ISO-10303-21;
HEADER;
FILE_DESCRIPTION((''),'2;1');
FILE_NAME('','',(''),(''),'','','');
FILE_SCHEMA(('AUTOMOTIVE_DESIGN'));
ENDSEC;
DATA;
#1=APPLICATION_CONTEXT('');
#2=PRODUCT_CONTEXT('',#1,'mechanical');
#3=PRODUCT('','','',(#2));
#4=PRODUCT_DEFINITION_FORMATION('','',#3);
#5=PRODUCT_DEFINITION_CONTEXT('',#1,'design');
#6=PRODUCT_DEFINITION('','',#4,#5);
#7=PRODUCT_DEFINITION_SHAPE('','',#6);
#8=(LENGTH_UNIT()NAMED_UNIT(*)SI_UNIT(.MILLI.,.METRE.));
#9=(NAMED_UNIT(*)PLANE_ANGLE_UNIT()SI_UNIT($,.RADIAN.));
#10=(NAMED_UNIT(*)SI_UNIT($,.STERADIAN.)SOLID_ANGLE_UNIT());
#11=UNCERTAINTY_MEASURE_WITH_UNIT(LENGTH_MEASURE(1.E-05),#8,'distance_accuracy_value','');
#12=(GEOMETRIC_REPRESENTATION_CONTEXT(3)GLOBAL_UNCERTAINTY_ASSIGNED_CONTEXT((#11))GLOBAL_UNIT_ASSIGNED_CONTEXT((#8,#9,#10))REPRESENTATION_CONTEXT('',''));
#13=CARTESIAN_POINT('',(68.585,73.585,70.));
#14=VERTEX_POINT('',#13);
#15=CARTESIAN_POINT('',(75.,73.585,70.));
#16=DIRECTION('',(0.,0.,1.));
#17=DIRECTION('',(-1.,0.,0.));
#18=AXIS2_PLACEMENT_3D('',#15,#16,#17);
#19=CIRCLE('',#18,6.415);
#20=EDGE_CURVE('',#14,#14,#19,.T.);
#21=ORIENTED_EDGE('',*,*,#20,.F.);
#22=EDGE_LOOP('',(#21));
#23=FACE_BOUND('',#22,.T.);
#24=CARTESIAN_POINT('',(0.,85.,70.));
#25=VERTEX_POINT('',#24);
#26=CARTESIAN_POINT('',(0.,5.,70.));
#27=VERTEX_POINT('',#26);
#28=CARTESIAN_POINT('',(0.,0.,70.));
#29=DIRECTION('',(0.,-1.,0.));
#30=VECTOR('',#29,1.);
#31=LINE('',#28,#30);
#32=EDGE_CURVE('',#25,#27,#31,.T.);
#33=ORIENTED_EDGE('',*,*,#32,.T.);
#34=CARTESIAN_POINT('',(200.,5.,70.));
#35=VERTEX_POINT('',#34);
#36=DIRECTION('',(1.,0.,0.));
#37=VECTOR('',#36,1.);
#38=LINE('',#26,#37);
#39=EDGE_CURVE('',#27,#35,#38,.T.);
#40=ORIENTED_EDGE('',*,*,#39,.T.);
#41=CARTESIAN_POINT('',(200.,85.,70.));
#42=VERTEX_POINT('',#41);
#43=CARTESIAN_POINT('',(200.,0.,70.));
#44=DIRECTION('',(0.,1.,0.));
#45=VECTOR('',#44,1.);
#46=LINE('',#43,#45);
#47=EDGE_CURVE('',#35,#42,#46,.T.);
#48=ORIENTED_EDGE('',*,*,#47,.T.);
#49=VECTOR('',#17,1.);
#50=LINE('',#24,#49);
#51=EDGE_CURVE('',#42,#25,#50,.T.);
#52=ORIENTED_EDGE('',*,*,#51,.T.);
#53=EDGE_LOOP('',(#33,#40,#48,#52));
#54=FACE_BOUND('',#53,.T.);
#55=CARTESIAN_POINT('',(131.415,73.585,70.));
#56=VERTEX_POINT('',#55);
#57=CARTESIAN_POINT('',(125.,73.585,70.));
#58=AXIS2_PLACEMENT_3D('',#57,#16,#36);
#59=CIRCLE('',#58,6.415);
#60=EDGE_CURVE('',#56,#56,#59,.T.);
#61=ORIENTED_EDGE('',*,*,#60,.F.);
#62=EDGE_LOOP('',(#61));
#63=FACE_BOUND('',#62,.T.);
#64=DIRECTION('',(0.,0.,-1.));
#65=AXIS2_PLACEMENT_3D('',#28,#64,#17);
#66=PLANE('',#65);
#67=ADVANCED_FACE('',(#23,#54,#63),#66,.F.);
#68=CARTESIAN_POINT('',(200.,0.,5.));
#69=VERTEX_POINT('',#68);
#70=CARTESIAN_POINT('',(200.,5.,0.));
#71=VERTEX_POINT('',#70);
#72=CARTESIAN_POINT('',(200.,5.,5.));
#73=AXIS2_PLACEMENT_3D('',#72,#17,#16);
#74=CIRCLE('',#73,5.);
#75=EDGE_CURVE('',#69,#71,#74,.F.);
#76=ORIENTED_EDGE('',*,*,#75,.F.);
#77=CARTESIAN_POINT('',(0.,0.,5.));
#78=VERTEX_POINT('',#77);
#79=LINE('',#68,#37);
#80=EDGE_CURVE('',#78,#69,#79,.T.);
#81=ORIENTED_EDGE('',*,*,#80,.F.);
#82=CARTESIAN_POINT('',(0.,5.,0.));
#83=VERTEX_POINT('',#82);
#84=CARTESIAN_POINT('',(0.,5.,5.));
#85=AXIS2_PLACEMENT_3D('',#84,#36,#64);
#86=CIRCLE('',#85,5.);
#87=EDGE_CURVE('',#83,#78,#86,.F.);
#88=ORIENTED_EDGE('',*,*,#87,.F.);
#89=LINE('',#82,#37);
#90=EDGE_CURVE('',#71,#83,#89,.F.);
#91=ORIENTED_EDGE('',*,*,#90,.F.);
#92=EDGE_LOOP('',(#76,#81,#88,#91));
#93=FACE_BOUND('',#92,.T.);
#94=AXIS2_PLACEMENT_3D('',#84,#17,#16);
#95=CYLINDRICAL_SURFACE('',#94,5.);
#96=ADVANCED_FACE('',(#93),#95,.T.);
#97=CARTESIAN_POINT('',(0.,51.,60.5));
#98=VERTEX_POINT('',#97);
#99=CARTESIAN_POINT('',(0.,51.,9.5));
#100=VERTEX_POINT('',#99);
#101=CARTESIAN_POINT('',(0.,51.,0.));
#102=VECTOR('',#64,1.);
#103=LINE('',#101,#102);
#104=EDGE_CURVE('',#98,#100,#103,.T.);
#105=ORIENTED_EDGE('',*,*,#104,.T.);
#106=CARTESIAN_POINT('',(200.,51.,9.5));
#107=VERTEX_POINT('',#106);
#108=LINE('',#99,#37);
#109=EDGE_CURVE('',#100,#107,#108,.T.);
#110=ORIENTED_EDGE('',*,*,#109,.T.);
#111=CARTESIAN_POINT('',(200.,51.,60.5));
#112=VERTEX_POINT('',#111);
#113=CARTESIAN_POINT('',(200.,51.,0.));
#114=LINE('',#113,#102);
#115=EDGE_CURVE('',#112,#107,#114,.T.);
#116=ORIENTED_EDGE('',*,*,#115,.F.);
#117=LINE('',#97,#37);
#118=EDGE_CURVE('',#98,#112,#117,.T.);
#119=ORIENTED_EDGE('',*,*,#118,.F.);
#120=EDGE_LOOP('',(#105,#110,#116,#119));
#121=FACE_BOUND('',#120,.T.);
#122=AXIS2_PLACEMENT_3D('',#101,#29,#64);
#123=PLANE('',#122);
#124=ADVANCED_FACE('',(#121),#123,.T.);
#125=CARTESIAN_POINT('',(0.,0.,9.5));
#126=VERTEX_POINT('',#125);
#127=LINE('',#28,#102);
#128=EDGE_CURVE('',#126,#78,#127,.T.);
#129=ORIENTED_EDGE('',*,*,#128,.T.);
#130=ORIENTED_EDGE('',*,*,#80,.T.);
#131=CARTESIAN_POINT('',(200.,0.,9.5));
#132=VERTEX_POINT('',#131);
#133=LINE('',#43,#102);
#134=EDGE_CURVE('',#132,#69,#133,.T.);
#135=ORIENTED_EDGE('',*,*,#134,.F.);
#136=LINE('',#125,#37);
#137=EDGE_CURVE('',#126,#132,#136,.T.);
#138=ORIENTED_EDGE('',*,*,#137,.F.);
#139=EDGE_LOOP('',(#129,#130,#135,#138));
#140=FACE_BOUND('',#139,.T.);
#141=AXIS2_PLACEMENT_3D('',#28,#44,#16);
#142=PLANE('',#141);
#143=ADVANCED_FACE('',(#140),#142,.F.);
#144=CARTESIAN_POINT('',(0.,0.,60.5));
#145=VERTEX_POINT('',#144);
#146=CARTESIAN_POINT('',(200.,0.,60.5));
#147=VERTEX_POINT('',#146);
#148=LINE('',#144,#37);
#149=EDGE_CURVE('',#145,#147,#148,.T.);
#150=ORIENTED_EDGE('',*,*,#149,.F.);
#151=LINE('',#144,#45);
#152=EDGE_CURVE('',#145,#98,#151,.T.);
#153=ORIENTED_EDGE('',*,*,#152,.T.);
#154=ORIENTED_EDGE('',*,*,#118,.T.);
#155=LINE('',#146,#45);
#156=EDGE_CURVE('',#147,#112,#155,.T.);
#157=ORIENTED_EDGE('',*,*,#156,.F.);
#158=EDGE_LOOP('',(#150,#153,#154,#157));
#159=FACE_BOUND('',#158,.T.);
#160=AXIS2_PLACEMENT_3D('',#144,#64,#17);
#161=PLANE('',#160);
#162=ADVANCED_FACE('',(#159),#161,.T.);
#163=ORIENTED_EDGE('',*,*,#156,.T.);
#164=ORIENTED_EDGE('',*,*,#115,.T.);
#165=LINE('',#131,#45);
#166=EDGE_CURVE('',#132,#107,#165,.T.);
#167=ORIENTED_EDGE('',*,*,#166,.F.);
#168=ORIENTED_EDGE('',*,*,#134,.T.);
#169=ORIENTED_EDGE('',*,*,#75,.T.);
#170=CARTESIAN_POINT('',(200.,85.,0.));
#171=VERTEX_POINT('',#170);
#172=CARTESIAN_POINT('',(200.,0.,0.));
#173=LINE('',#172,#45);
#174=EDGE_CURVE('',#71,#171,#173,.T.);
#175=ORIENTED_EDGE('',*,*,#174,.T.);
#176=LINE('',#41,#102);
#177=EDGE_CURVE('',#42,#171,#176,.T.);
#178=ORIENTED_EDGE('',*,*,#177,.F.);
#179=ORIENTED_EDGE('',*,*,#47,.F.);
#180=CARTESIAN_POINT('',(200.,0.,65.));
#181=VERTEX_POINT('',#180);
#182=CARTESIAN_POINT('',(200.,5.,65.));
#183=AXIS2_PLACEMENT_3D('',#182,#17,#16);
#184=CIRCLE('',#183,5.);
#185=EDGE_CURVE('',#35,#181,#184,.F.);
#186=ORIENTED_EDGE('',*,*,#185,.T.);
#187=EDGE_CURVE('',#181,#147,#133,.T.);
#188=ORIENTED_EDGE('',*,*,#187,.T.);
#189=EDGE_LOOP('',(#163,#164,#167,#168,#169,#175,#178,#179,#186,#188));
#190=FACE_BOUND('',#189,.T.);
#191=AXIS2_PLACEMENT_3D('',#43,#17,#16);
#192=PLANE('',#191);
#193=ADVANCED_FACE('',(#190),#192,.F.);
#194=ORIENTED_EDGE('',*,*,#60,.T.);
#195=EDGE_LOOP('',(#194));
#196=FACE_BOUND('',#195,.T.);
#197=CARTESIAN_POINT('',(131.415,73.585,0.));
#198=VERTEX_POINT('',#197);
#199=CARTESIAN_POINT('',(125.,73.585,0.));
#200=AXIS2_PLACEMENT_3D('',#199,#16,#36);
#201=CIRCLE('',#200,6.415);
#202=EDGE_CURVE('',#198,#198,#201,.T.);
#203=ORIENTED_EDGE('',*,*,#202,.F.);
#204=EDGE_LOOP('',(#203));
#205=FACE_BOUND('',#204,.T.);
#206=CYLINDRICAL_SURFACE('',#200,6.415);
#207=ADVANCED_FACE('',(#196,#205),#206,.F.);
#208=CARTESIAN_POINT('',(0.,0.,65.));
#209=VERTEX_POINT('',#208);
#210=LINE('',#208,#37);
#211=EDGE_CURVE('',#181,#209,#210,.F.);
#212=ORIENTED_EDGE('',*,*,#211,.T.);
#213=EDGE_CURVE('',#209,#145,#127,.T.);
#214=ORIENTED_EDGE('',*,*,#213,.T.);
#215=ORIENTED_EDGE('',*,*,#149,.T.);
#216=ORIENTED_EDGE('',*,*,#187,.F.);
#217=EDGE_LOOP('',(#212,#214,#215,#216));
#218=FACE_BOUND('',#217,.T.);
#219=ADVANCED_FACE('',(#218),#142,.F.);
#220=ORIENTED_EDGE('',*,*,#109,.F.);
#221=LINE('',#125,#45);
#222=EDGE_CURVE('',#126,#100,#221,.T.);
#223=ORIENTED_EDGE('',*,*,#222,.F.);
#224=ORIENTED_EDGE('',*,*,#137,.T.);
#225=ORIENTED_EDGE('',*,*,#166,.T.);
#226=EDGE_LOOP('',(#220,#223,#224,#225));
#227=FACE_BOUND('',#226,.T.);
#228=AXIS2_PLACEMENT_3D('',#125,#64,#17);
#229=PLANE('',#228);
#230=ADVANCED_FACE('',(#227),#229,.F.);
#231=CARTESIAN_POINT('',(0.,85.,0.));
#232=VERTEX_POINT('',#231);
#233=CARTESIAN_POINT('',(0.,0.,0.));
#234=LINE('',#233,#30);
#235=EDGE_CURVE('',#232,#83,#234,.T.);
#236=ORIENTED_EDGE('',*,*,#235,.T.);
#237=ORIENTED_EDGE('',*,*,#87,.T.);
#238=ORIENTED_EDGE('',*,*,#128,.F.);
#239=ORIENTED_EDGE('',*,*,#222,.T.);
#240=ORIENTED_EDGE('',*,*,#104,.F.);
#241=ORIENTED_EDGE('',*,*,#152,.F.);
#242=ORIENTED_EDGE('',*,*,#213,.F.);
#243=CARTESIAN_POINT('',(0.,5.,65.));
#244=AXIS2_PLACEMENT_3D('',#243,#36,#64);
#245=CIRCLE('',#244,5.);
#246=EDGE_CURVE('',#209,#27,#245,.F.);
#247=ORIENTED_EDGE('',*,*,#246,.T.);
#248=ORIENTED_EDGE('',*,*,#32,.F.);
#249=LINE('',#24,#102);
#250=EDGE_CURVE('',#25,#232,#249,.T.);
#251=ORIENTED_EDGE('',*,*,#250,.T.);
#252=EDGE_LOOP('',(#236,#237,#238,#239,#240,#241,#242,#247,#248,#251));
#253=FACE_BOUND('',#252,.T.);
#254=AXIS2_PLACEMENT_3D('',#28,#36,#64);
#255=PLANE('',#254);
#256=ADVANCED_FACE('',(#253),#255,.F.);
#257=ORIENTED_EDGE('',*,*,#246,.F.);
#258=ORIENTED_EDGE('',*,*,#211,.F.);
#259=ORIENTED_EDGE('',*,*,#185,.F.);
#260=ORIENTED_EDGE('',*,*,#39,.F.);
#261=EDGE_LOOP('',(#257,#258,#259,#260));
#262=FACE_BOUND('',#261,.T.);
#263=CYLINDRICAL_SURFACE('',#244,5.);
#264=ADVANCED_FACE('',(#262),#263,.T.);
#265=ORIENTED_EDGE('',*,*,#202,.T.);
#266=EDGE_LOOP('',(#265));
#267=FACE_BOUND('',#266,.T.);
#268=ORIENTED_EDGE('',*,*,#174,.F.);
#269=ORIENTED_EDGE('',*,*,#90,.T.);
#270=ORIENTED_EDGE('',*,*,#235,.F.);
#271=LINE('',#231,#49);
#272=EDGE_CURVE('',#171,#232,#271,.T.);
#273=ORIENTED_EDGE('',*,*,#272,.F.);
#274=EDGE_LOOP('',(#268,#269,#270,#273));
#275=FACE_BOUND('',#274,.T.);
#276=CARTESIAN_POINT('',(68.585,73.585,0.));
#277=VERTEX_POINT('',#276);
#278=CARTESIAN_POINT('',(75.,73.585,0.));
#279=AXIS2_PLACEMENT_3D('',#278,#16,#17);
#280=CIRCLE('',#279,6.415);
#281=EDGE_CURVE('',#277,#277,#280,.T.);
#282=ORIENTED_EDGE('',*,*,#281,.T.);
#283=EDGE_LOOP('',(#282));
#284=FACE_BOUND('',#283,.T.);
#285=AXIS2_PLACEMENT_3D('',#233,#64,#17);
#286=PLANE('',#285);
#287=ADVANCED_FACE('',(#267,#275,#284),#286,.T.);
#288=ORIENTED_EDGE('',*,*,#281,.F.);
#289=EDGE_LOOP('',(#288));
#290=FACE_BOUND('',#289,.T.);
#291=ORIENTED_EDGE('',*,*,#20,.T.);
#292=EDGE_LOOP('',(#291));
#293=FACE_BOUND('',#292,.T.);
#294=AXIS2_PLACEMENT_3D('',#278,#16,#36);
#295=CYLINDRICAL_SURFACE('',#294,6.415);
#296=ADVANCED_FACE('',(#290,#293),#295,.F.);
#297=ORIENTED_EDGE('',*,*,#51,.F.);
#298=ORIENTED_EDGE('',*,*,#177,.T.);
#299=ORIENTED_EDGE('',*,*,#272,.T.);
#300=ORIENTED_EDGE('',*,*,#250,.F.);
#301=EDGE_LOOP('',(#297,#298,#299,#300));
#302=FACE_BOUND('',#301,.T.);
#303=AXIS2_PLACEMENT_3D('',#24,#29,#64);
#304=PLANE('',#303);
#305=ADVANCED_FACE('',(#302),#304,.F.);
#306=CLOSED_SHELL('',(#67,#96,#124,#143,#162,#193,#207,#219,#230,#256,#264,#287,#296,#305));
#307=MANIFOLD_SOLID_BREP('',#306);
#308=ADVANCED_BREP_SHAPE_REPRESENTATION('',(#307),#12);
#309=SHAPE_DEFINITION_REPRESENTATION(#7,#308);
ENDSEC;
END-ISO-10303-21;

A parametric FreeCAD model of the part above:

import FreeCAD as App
import Part
import Sketcher


def edges_at(feature, points):
    """Names of the edges that pass closest to the given points."""
    edges = feature.Shape.Edges
    near = lambda p: min(range(len(edges)), key=lambda i: edges[i].distToShape(Part.Vertex(*p))[0])
    return sorted({f"Edge{near(p) + 1}" for p in points})

doc = App.newDocument("Part")
body = doc.addObject("PartDesign::Body", "Body")

sketch1 = body.newObject("Sketcher::SketchObject", "Sketch")
sketch1.AttachmentSupport = (doc.getObject("XY_Plane"), [""])
sketch1.MapMode = "FlatFace"
sketch1.addGeometry([
    Part.LineSegment(App.Vector(0, 85, 0), App.Vector(0, 0, 0)),
    Part.LineSegment(App.Vector(0, 0, 0), App.Vector(200, 0, 0)),
    Part.LineSegment(App.Vector(200, 0, 0), App.Vector(200, 85, 0)),
    Part.LineSegment(App.Vector(200, 85, 0), App.Vector(0, 85, 0)),
], False)
sketch1.addConstraint([
    Sketcher.Constraint("Coincident", 0, 2, 1, 1),
    Sketcher.Constraint("Coincident", 1, 2, 2, 1),
    Sketcher.Constraint("Coincident", 2, 2, 3, 1),
    Sketcher.Constraint("Coincident", 3, 2, 0, 1),
    Sketcher.Constraint("Vertical", 0),
    Sketcher.Constraint("Horizontal", 1),
    Sketcher.Constraint("Vertical", 2),
    Sketcher.Constraint("Horizontal", 3),
    Sketcher.Constraint("Coincident", 0, 2, -1, 1),
    Sketcher.Constraint("DistanceX", 1, 1, 1, 2, 200.0),
    Sketcher.Constraint("DistanceY", 0, 2, 0, 1, 85.0),
])
pad1 = body.newObject("PartDesign::Pad", "Pad")
pad1.Profile = sketch1
pad1.Length = 70

sketch2 = body.newObject("Sketcher::SketchObject", "Sketch001")
sketch2.AttachmentSupport = (doc.getObject("YZ_Plane"), [""])
sketch2.MapMode = "FlatFace"
sketch2.AttachmentOffset = App.Placement(App.Vector(0, 0, 200), App.Rotation())
sketch2.addGeometry([
    Part.LineSegment(App.Vector(51, 60, 0), App.Vector(0, 60, 0)),
    Part.LineSegment(App.Vector(0, 60, 0), App.Vector(0, 10, 0)),
    Part.LineSegment(App.Vector(0, 10, 0), App.Vector(51, 10, 0)),
    Part.LineSegment(App.Vector(51, 10, 0), App.Vector(51, 60, 0)),
], False)
sketch2.addConstraint([
    Sketcher.Constraint("Coincident", 0, 2, 1, 1),
    Sketcher.Constraint("Coincident", 1, 2, 2, 1),
    Sketcher.Constraint("Coincident", 2, 2, 3, 1),
    Sketcher.Constraint("Coincident", 3, 2, 0, 1),
    Sketcher.Constraint("Horizontal", 0),
    Sketcher.Constraint("Vertical", 1),
    Sketcher.Constraint("Horizontal", 2),
    Sketcher.Constraint("Vertical", 3),
    Sketcher.Constraint("PointOnObject", 0, 2, -2),
    Sketcher.Constraint("Equal", 2, 1),
    Sketcher.Constraint("DistanceX", 0, 2, 0, 1, 51.0),
    Sketcher.Constraint("DistanceY", -1, 1, 0, 2, 60.5),
])
pocket1 = body.newObject("PartDesign::Pocket", "Pocket")
pocket1.Profile = sketch2
pocket1.Type = "ThroughAll"
doc.recompute()

fillet = body.newObject("PartDesign::Fillet", "Fillet")
fillet.Base = (pocket1, edges_at(pocket1, [(100, 0, 0), (100, 0, 70)]))
fillet.Radius = 5

sketch3 = body.newObject("Sketcher::SketchObject", "Sketch002")
sketch3.AttachmentSupport = (doc.getObject("XY_Plane"), [""])
sketch3.MapMode = "FlatFace"
sketch3.AttachmentOffset = App.Placement(App.Vector(0, 0, 70), App.Rotation())
sketch3.addGeometry([
    Part.Circle(App.Vector(125, 74, 0), App.Vector(0, 0, 1), 6),
    Part.Circle(App.Vector(75, 74, 0), App.Vector(0, 0, 1), 6),
], False)
sketch3.addConstraint([
    Sketcher.Constraint("Equal", 0, 1),
    Sketcher.Constraint("Horizontal", 0, 3, 1, 3),
    Sketcher.Constraint("Diameter", 0, 12.83),
    Sketcher.Constraint("DistanceX", -1, 1, 0, 3, 125.0),
    Sketcher.Constraint("DistanceX", -1, 1, 1, 3, 75.0),
    Sketcher.Constraint("DistanceY", -1, 1, 0, 3, 73.585),
])
pocket2 = body.newObject("PartDesign::Pocket", "Pocket001")
pocket2.Profile = sketch3
pocket2.Type = "ThroughAll"

doc.recompute()
